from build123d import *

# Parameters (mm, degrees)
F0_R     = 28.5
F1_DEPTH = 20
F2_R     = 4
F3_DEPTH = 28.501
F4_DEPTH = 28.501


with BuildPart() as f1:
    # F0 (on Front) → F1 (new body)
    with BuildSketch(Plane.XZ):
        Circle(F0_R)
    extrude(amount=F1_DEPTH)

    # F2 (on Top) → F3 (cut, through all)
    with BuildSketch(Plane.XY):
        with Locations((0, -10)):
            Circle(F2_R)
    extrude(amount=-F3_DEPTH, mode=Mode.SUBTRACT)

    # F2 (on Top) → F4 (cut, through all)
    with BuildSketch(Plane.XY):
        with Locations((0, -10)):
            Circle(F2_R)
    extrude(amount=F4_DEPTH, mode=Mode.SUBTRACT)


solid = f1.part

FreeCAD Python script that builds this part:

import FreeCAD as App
import Part
import Sketcher
from FreeCAD import Vector
Q = App.Units.Quantity

doc = App.newDocument("Part")
body = doc.addObject("PartDesign::Body", "Body")

# Sketch on XZ plane
sketch1 = body.newObject("Sketcher::SketchObject", "Sketch")
sketch1.AttachmentSupport = (doc.getObject("XZ_Plane"), [""])
sketch1.MapMode = "FlatFace"
sketch1.addGeometry(Part.Circle(Vector(0, 0, 0), Vector(0, 0, 1), 28.5), False)
sketch1.addConstraint(Sketcher.Constraint("Coincident", 0, 3, -1, 1))
sketch1.addConstraint(Sketcher.Constraint("Diameter", 0, Q("57 mm")))
pad1 = body.newObject("PartDesign::Pad", "Pad")
pad1.Profile = sketch1
pad1.Length = 20

# Sketch on XY plane
sketch2 = body.newObject("Sketcher::SketchObject", "Sketch001")
sketch2.AttachmentSupport = (doc.getObject("XY_Plane"), [""])
sketch2.MapMode = "FlatFace"
sketch2.addGeometry(Part.Circle(Vector(0, -10, 0), Vector(0, 0, 1), 4), False)
sketch2.addConstraint(Sketcher.Constraint("PointOnObject", 0, 3, -2))
sketch2.addConstraint(Sketcher.Constraint("Diameter", 0, Q("8 mm")))
sketch2.addConstraint(Sketcher.Constraint("DistanceY", 0, 3, -1, 1, Q("10 mm")))
pocket1 = body.newObject("PartDesign::Pocket", "Pocket")
pocket1.Profile = sketch2
pocket1.Type = "ThroughAll"

# Sketch on XY plane
sketch3 = body.newObject("Sketcher::SketchObject", "Sketch002")
sketch3.AttachmentSupport = (doc.getObject("XY_Plane"), [""])
sketch3.MapMode = "FlatFace"
sketch3.addGeometry(Part.Circle(Vector(0, -10, 0), Vector(0, 0, 1), 4), False)
sketch3.addConstraint(Sketcher.Constraint("PointOnObject", 0, 3, -2))
sketch3.addConstraint(Sketcher.Constraint("Diameter", 0, Q("8 mm")))
sketch3.addConstraint(Sketcher.Constraint("DistanceY", 0, 3, -1, 1, Q("10 mm")))
pocket2 = body.newObject("PartDesign::Pocket", "Pocket001")
pocket2.Profile = sketch3
pocket2.Type = "ThroughAll"
pocket2.Reversed = True

doc.recompute()
